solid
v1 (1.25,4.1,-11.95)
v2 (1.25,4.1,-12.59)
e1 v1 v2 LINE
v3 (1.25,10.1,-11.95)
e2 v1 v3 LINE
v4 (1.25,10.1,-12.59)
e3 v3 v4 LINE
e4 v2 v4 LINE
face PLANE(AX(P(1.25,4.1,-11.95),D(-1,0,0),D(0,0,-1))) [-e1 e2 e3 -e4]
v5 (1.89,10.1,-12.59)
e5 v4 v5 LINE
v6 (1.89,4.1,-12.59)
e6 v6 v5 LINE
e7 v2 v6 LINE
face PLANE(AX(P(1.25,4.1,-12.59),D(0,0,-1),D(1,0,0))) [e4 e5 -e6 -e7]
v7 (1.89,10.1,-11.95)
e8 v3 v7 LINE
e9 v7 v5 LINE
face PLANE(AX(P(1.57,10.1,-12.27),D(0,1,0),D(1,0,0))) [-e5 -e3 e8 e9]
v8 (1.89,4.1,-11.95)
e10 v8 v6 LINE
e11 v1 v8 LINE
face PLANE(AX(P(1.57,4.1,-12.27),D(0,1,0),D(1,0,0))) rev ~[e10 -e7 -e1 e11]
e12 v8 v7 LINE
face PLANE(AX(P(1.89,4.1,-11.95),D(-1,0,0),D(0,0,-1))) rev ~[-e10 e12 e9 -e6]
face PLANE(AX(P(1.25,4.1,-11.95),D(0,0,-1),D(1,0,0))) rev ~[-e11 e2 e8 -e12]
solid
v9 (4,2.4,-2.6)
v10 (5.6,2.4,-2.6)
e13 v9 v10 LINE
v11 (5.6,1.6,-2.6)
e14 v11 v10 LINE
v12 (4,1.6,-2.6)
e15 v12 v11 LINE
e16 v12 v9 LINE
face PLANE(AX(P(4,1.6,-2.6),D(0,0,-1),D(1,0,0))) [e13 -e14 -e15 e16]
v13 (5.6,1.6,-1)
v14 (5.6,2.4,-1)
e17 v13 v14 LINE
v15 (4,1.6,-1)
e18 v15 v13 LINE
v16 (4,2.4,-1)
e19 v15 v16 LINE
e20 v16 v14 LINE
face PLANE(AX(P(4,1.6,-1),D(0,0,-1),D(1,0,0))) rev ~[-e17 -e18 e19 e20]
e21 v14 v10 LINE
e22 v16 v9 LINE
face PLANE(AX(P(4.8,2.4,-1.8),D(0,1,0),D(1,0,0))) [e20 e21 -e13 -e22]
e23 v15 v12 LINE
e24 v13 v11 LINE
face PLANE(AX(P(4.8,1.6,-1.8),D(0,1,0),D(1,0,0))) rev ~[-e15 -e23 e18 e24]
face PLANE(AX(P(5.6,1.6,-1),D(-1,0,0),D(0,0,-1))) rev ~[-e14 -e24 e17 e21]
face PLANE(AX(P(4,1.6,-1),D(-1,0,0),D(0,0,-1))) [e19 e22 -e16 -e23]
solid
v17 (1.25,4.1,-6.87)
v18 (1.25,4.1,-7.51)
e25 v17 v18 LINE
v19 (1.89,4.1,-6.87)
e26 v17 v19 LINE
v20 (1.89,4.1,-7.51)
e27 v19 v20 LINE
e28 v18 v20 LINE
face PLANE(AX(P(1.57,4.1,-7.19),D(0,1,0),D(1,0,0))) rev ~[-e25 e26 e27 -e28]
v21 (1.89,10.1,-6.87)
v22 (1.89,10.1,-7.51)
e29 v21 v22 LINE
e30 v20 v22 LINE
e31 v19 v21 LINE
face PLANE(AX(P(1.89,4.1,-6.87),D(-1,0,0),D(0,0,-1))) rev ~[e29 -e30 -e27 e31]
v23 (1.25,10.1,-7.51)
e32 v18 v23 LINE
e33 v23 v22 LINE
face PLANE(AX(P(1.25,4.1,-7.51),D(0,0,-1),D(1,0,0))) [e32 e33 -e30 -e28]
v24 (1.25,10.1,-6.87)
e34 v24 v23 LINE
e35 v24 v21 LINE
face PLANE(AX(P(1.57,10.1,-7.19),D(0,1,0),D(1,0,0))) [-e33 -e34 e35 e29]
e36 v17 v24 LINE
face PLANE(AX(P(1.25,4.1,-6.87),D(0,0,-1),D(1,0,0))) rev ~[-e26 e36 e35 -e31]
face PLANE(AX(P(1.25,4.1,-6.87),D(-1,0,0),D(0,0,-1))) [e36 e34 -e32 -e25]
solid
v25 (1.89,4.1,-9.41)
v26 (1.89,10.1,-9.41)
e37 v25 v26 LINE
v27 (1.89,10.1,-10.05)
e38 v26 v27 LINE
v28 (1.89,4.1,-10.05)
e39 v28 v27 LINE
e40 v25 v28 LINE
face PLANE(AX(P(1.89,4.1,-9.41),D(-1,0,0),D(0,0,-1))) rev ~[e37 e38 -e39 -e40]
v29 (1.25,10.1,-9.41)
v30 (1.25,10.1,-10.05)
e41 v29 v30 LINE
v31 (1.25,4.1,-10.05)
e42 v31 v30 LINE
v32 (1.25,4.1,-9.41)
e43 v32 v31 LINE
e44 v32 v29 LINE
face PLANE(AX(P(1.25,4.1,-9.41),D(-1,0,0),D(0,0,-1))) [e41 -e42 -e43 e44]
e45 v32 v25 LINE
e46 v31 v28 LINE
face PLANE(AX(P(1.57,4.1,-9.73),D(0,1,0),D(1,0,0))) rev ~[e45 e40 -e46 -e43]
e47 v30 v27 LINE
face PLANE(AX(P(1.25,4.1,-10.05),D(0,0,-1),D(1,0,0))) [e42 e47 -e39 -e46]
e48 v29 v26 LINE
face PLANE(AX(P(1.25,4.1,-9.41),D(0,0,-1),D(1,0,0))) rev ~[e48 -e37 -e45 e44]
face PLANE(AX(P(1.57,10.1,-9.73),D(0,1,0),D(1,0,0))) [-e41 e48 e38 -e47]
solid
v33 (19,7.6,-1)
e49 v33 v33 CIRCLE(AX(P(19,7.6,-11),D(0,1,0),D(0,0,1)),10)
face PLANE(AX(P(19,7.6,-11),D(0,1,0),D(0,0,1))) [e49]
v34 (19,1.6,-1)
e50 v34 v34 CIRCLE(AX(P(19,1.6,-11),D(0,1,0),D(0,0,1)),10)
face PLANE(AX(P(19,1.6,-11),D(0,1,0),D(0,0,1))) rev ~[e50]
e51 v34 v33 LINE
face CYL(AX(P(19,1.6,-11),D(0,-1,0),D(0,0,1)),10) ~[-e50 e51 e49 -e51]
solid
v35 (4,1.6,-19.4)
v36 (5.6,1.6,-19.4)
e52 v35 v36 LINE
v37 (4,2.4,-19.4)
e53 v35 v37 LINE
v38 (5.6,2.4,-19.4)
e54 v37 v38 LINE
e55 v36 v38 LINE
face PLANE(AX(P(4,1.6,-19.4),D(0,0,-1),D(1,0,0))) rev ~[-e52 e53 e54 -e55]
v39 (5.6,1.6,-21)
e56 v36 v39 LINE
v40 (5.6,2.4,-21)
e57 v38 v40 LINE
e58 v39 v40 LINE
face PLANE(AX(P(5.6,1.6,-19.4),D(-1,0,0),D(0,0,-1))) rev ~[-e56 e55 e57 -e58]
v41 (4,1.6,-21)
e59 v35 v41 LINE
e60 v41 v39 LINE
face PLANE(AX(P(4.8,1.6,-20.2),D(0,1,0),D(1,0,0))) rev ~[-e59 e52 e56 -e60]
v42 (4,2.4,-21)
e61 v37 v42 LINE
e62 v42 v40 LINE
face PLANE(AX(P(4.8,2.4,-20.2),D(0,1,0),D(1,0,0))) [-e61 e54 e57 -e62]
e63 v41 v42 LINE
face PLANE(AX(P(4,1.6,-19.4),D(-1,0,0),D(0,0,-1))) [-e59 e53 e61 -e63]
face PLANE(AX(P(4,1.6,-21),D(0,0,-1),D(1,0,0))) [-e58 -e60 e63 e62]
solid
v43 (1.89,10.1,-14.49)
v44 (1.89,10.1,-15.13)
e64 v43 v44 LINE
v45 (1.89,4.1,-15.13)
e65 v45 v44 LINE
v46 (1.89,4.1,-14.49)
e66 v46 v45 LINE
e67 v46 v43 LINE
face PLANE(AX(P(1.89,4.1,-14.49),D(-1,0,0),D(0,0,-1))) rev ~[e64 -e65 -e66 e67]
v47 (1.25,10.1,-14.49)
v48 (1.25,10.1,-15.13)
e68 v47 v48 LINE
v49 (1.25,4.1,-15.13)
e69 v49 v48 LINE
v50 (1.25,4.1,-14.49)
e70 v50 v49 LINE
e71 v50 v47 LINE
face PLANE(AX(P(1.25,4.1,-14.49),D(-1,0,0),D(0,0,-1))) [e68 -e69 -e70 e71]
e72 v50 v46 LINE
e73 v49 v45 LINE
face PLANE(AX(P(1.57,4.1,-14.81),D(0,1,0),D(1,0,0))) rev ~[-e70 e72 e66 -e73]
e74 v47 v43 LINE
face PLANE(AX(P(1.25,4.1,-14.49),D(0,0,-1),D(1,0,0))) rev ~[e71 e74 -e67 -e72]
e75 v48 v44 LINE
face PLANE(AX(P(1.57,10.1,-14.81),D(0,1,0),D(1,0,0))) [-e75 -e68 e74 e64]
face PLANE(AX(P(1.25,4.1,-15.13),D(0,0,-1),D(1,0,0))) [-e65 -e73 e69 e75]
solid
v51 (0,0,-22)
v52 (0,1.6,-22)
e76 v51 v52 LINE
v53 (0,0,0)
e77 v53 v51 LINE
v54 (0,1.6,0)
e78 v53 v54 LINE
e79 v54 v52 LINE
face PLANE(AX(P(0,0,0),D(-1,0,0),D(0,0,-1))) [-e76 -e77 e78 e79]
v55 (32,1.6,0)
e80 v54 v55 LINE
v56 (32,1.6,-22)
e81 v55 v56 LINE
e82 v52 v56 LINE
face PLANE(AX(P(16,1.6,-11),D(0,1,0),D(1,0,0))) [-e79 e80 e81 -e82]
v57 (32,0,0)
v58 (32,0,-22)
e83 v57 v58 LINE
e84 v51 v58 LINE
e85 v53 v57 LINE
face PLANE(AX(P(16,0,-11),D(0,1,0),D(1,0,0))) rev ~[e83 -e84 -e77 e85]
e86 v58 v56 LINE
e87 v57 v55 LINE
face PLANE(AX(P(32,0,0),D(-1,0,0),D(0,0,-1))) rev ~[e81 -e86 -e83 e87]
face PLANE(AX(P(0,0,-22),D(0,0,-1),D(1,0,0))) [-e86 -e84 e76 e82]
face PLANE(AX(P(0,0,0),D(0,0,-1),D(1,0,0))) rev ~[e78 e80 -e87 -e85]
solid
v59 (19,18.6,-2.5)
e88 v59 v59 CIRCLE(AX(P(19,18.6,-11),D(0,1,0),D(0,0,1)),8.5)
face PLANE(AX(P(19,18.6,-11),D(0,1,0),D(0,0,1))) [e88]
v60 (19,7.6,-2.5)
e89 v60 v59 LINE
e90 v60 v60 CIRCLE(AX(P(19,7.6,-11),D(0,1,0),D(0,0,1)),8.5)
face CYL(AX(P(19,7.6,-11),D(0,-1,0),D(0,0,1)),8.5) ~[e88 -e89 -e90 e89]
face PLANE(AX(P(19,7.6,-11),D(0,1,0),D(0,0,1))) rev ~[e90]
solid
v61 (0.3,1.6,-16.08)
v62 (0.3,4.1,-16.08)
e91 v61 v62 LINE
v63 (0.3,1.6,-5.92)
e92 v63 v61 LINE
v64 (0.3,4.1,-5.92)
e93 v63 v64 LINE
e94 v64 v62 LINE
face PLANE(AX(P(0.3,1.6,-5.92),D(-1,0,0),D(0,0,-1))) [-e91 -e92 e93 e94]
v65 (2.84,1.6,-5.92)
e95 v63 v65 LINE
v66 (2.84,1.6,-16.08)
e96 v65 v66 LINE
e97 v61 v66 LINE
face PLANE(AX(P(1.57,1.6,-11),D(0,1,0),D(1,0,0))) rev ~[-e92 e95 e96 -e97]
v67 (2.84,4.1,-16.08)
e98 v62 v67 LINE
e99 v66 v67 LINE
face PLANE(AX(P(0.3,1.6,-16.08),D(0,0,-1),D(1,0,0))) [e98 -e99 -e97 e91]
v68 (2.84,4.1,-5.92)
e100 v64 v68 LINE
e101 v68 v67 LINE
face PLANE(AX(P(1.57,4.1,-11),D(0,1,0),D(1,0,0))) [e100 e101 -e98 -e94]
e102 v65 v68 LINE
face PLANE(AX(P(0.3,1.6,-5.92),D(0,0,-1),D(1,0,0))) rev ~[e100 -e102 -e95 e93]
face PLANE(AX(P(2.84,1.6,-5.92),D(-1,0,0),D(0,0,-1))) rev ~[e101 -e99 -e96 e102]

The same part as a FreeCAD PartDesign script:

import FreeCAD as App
import Part
import Sketcher
from FreeCAD import Vector

doc = App.newDocument("Part")
body = doc.addObject("PartDesign::Body", "Body")

# Sketch on XZ plane
sketch1 = body.newObject("Sketcher::SketchObject", "Sketch")
sketch1.AttachmentSupport = (doc.getObject("XZ_Plane"), [""])
sketch1.MapMode = "FlatFace"
sketch1.addGeometry([
    Part.LineSegment(Vector(0, -22, 0), Vector(0, 0, 0)),
    Part.LineSegment(Vector(0, 0, 0), Vector(32, 0, 0)),
    Part.LineSegment(Vector(32, 0, 0), Vector(32, -22, 0)),
    Part.LineSegment(Vector(32, -22, 0), Vector(0, -22, 0)),
], False)
sketch1.addConstraint([
    Sketcher.Constraint("Coincident", 0, 2, 1, 1),
    Sketcher.Constraint("Coincident", 1, 2, 2, 1),
    Sketcher.Constraint("Coincident", 2, 2, 3, 1),
    Sketcher.Constraint("Coincident", 3, 2, 0, 1),
    Sketcher.Constraint("Vertical", 0),
    Sketcher.Constraint("Horizontal", 1),
    Sketcher.Constraint("Vertical", 2),
    Sketcher.Constraint("Horizontal", 3),
    Sketcher.Constraint("Coincident", 0, 2, -1, 1),
    Sketcher.Constraint("DistanceX", 1, 1, 1, 2, 32.0),
    Sketcher.Constraint("DistanceY", 0, 1, 0, 2, 22.0),
])
pad1 = body.newObject("PartDesign::Pad", "Pad")
pad1.Profile = sketch1
pad1.Length = 1.6
pad1.Reversed = True
body2 = doc.addObject("PartDesign::Body", "Body001")

# Sketch on XZ plane
sketch2 = body2.newObject("Sketcher::SketchObject", "Sketch001")
sketch2.AttachmentSupport = (doc.getObject("XZ_Plane001"), [""])
sketch2.MapMode = "FlatFace"
sketch2.AttachmentOffset = App.Placement(Vector(0, 0, -1.6), App.Rotation())
sketch2.addGeometry(Part.Circle(Vector(19, -11, 0), Vector(0, 0, 1), 10), False)
sketch2.addConstraint([
    Sketcher.Constraint("Diameter", 0, 20.0),
    Sketcher.Constraint("DistanceX", -1, 1, 0, 3, 19.0),
    Sketcher.Constraint("DistanceY", 0, 3, -1, 1, 11.0),
])
pad2 = body2.newObject("PartDesign::Pad", "Pad001")
pad2.Profile = sketch2
pad2.Length = 6
pad2.Reversed = True
body3 = doc.addObject("PartDesign::Body", "Body002")

# Sketch on XZ plane
sketch3 = body3.newObject("Sketcher::SketchObject", "Sketch002")
sketch3.AttachmentSupport = (doc.getObject("XZ_Plane002"), [""])
sketch3.MapMode = "FlatFace"
sketch3.AttachmentOffset = App.Placement(Vector(0, 0, -7.6), App.Rotation())
sketch3.addGeometry(Part.Circle(Vector(19, -11, 0), Vector(0, 0, 1), 8), False)
sketch3.addConstraint([
    Sketcher.Constraint("Diameter", 0, 17.0),
    Sketcher.Constraint("DistanceX", -1, 1, 0, 3, 19.0),
    Sketcher.Constraint("DistanceY", 0, 3, -1, 1, 11.0),
])
pad3 = body3.newObject("PartDesign::Pad", "Pad002")
pad3.Profile = sketch3
pad3.Length = 11
pad3.Reversed = True
body4 = doc.addObject("PartDesign::Body", "Body003")

# Sketch on XZ plane
sketch4 = body4.newObject("Sketcher::SketchObject", "Sketch003")
sketch4.AttachmentSupport = (doc.getObject("XZ_Plane003"), [""])
sketch4.MapMode = "FlatFace"
sketch4.AttachmentOffset = App.Placement(Vector(0, 0, -1.6), App.Rotation())
sketch4.addGeometry([
    Part.LineSegment(Vector(0.3, -16.1, 0), Vector(0.3, -5.9, 0)),
    Part.LineSegment(Vector(0.3, -5.9, 0), Vector(2.8, -5.9, 0)),
    Part.LineSegment(Vector(2.8, -5.9, 0), Vector(2.8, -16.1, 0)),
    Part.LineSegment(Vector(2.8, -16.1, 0), Vector(0.3, -16.1, 0)),
], False)
sketch4.addConstraint([
    Sketcher.Constraint("Coincident", 0, 2, 1, 1),
    Sketcher.Constraint("Coincident", 1, 2, 2, 1),
    Sketcher.Constraint("Coincident", 2, 2, 3, 1),
    Sketcher.Constraint("Coincident", 3, 2, 0, 1),
    Sketcher.Constraint("Vertical", 0),
    Sketcher.Constraint("Horizontal", 1),
    Sketcher.Constraint("Vertical", 2),
    Sketcher.Constraint("Horizontal", 3),
    Sketcher.Constraint("DistanceX", 1, 1, 1, 2, 2.54),
    Sketcher.Constraint("DistanceY", 0, 1, 0, 2, 10.16),
    Sketcher.Constraint("DistanceX", -1, 1, 0, 2, 0.3),
    Sketcher.Constraint("DistanceY", 0, 2, -1, 1, 5.92),
])
pad4 = body4.newObject("PartDesign::Pad", "Pad003")
pad4.Profile = sketch4
pad4.Length = 2.5
pad4.Reversed = True
body5 = doc.addObject("PartDesign::Body", "Body004")

# Sketch on XZ plane
sketch5 = body5.newObject("Sketcher::SketchObject", "Sketch004")
sketch5.AttachmentSupport = (doc.getObject("XZ_Plane004"), [""])
sketch5.MapMode = "FlatFace"
sketch5.AttachmentOffset = App.Placement(Vector(0, 0, -4.1), App.Rotation())
sketch5.addGeometry([
    Part.LineSegment(Vector(1.2, -15.1, 0), Vector(1.2, -14.5, 0)),
    Part.LineSegment(Vector(1.2, -14.5, 0), Vector(1.9, -14.5, 0)),
    Part.LineSegment(Vector(1.9, -14.5, 0), Vector(1.9, -15.1, 0)),
    Part.LineSegment(Vector(1.9, -15.1, 0), Vector(1.2, -15.1, 0)),
], False)
sketch5.addConstraint([
    Sketcher.Constraint("Coincident", 0, 2, 1, 1),
    Sketcher.Constraint("Coincident", 1, 2, 2, 1),
    Sketcher.Constraint("Coincident", 2, 2, 3, 1),
    Sketcher.Constraint("Coincident", 3, 2, 0, 1),
    Sketcher.Constraint("Vertical", 0),
    Sketcher.Constraint("Horizontal", 1),
    Sketcher.Constraint("Vertical", 2),
    Sketcher.Constraint("Horizontal", 3),
    Sketcher.Constraint("Equal", 3, 0),
    Sketcher.Constraint("DistanceX", 1, 1, 1, 2, 0.64),
    Sketcher.Constraint("DistanceX", -1, 1, 0, 2, 1.25),
    Sketcher.Constraint("DistanceY", 0, 2, -1, 1, 14.49),
])
pad5 = body5.newObject("PartDesign::Pad", "Pad004")
pad5.Profile = sketch5
pad5.Length = 6
pad5.Reversed = True
body6 = doc.addObject("PartDesign::Body", "Body005")

# Sketch on XZ plane
sketch6 = body6.newObject("Sketcher::SketchObject", "Sketch005")
sketch6.AttachmentSupport = (doc.getObject("XZ_Plane005"), [""])
sketch6.MapMode = "FlatFace"
sketch6.AttachmentOffset = App.Placement(Vector(0, 0, -4.1), App.Rotation())
sketch6.addGeometry([
    Part.LineSegment(Vector(1.2, -12.6, 0), Vector(1.2, -11.9, 0)),
    Part.LineSegment(Vector(1.2, -11.9, 0), Vector(1.9, -11.9, 0)),
    Part.LineSegment(Vector(1.9, -11.9, 0), Vector(1.9, -12.6, 0)),
    Part.LineSegment(Vector(1.9, -12.6, 0), Vector(1.2, -12.6, 0)),
], False)
sketch6.addConstraint([
    Sketcher.Constraint("Coincident", 0, 2, 1, 1),
    Sketcher.Constraint("Coincident", 1, 2, 2, 1),
    Sketcher.Constraint("Coincident", 2, 2, 3, 1),
    Sketcher.Constraint("Coincident", 3, 2, 0, 1),
    Sketcher.Constraint("Vertical", 0),
    Sketcher.Constraint("Horizontal", 1),
    Sketcher.Constraint("Vertical", 2),
    Sketcher.Constraint("Horizontal", 3),
    Sketcher.Constraint("Equal", 3, 0),
    Sketcher.Constraint("DistanceX", 1, 1, 1, 2, 0.64),
    Sketcher.Constraint("DistanceX", -1, 1, 0, 2, 1.25),
    Sketcher.Constraint("DistanceY", 0, 2, -1, 1, 11.95),
])
pad6 = body6.newObject("PartDesign::Pad", "Pad005")
pad6.Profile = sketch6
pad6.Length = 6
pad6.Reversed = True
body7 = doc.addObject("PartDesign::Body", "Body006")

# Sketch on XZ plane
sketch7 = body7.newObject("Sketcher::SketchObject", "Sketch006")
sketch7.AttachmentSupport = (doc.getObject("XZ_Plane006"), [""])
sketch7.MapMode = "FlatFace"
sketch7.AttachmentOffset = App.Placement(Vector(0, 0, -4.1), App.Rotation())
sketch7.addGeometry([
    Part.LineSegment(Vector(1.2, -10.1, 0), Vector(1.2, -9.4, 0)),
    Part.LineSegment(Vector(1.2, -9.4, 0), Vector(1.9, -9.4, 0)),
    Part.LineSegment(Vector(1.9, -9.4, 0), Vector(1.9, -10.1, 0)),
    Part.LineSegment(Vector(1.9, -10.1, 0), Vector(1.2, -10.1, 0)),
], False)
sketch7.addConstraint([
    Sketcher.Constraint("Coincident", 0, 2, 1, 1),
    Sketcher.Constraint("Coincident", 1, 2, 2, 1),
    Sketcher.Constraint("Coincident", 2, 2, 3, 1),
    Sketcher.Constraint("Coincident", 3, 2, 0, 1),
    Sketcher.Constraint("Vertical", 0),
    Sketcher.Constraint("Horizontal", 1),
    Sketcher.Constraint("Vertical", 2),
    Sketcher.Constraint("Horizontal", 3),
    Sketcher.Constraint("Equal", 3, 0),
    Sketcher.Constraint("DistanceX", 1, 1, 1, 2, 0.64),
    Sketcher.Constraint("DistanceX", -1, 1, 0, 2, 1.25),
    Sketcher.Constraint("DistanceY", 0, 2, -1, 1, 9.41),
])
pad7 = body7.newObject("PartDesign::Pad", "Pad006")
pad7.Profile = sketch7
pad7.Length = 6
pad7.Reversed = True
body8 = doc.addObject("PartDesign::Body", "Body007")

# Sketch on XZ plane
sketch8 = body8.newObject("Sketcher::SketchObject", "Sketch007")
sketch8.AttachmentSupport = (doc.getObject("XZ_Plane007"), [""])
sketch8.MapMode = "FlatFace"
sketch8.AttachmentOffset = App.Placement(Vector(0, 0, -4.1), App.Rotation())
sketch8.addGeometry([
    Part.LineSegment(Vector(1.2, -7.5, 0), Vector(1.2, -6.9, 0)),
    Part.LineSegment(Vector(1.2, -6.9, 0), Vector(1.9, -6.9, 0)),
    Part.LineSegment(Vector(1.9, -6.9, 0), Vector(1.9, -7.5, 0)),
    Part.LineSegment(Vector(1.9, -7.5, 0), Vector(1.2, -7.5, 0)),
], False)
sketch8.addConstraint([
    Sketcher.Constraint("Coincident", 0, 2, 1, 1),
    Sketcher.Constraint("Coincident", 1, 2, 2, 1),
    Sketcher.Constraint("Coincident", 2, 2, 3, 1),
    Sketcher.Constraint("Coincident", 3, 2, 0, 1),
    Sketcher.Constraint("Vertical", 0),
    Sketcher.Constraint("Horizontal", 1),
    Sketcher.Constraint("Vertical", 2),
    Sketcher.Constraint("Horizontal", 3),
    Sketcher.Constraint("Equal", 3, 0),
    Sketcher.Constraint("DistanceX", 1, 1, 1, 2, 0.64),
    Sketcher.Constraint("DistanceX", -1, 1, 0, 2, 1.25),
    Sketcher.Constraint("DistanceY", 0, 2, -1, 1, 6.87),
])
pad8 = body8.newObject("PartDesign::Pad", "Pad007")
pad8.Profile = sketch8
pad8.Length = 6
pad8.Reversed = True
body9 = doc.addObject("PartDesign::Body", "Body008")

# Sketch on XZ plane
sketch9 = body9.newObject("Sketcher::SketchObject", "Sketch008")
sketch9.AttachmentSupport = (doc.getObject("XZ_Plane008"), [""])
sketch9.MapMode = "FlatFace"
sketch9.AttachmentOffset = App.Placement(Vector(0, 0, -1.6), App.Rotation())
sketch9.addGeometry([
    Part.LineSegment(Vector(4, -21, 0), Vector(4, -19.4, 0)),
    Part.LineSegment(Vector(4, -19.4, 0), Vector(5.6, -19.4, 0)),
    Part.LineSegment(Vector(5.6, -19.4, 0), Vector(5.6, -21, 0)),
    Part.LineSegment(Vector(5.6, -21, 0), Vector(4, -21, 0)),
], False)
sketch9.addConstraint([
    Sketcher.Constraint("Coincident", 0, 2, 1, 1),
    Sketcher.Constraint("Coincident", 1, 2, 2, 1),
    Sketcher.Constraint("Coincident", 2, 2, 3, 1),
    Sketcher.Constraint("Coincident", 3, 2, 0, 1),
    Sketcher.Constraint("Vertical", 0),
    Sketcher.Constraint("Horizontal", 1),
    Sketcher.Constraint("Vertical", 2),
    Sketcher.Constraint("Horizontal", 3),
    Sketcher.Constraint("Equal", 3, 0),
    Sketcher.Constraint("DistanceX", 1, 1, 1, 2, 1.6),
    Sketcher.Constraint("DistanceX", -1, 1, 0, 2, 4.0),
    Sketcher.Constraint("DistanceY", 2, 2, -1, 1, 21.0),
])
pad9 = body9.newObject("PartDesign::Pad", "Pad008")
pad9.Profile = sketch9
pad9.Length = 0.8
pad9.Reversed = True
body10 = doc.addObject("PartDesign::Body", "Body009")

# Sketch on XZ plane
sketch10 = body10.newObject("Sketcher::SketchObject", "Sketch009")
sketch10.AttachmentSupport = (doc.getObject("XZ_Plane009"), [""])
sketch10.MapMode = "FlatFace"
sketch10.AttachmentOffset = App.Placement(Vector(0, 0, -1.6), App.Rotation())
sketch10.addGeometry([
    Part.LineSegment(Vector(4, -2.6, 0), Vector(4, -1, 0)),
    Part.LineSegment(Vector(4, -1, 0), Vector(5.6, -1, 0)),
    Part.LineSegment(Vector(5.6, -1, 0), Vector(5.6, -2.6, 0)),
    Part.LineSegment(Vector(5.6, -2.6, 0), Vector(4, -2.6, 0)),
], False)
sketch10.addConstraint([
    Sketcher.Constraint("Coincident", 0, 2, 1, 1),
    Sketcher.Constraint("Coincident", 1, 2, 2, 1),
    Sketcher.Constraint("Coincident", 2, 2, 3, 1),
    Sketcher.Constraint("Coincident", 3, 2, 0, 1),
    Sketcher.Constraint("Vertical", 0),
    Sketcher.Constraint("Horizontal", 1),
    Sketcher.Constraint("Vertical", 2),
    Sketcher.Constraint("Horizontal", 3),
    Sketcher.Constraint("Equal", 3, 0),
    Sketcher.Constraint("DistanceX", 1, 1, 1, 2, 1.6),
    Sketcher.Constraint("DistanceX", -1, 1, 0, 2, 4.0),
    Sketcher.Constraint("DistanceY", 0, 2, -1, 1, 1.0),
])
pad10 = body10.newObject("PartDesign::Pad", "Pad009")
pad10.Profile = sketch10
pad10.Length = 0.8
pad10.Reversed = True

doc.recompute()
